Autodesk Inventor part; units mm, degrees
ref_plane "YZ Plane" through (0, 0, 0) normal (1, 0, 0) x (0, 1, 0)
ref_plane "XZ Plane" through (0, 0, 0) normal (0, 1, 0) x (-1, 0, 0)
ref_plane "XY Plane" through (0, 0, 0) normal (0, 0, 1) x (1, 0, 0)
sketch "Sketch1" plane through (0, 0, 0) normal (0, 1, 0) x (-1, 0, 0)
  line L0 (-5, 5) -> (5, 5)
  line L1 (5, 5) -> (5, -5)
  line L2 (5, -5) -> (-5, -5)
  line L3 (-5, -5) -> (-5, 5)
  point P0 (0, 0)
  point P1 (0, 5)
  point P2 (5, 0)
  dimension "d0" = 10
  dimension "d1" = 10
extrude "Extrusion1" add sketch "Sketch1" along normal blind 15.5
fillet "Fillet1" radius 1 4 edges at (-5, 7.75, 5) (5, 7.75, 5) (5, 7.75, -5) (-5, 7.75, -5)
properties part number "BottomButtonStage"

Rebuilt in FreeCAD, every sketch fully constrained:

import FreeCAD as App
import Part
import Sketcher
Q = App.Units.Quantity


def edges_at(feature, points):
    """Names of the edges that pass closest to the given points."""
    edges = feature.Shape.Edges
    near = lambda p: min(range(len(edges)), key=lambda i: edges[i].distToShape(Part.Vertex(*p))[0])
    return sorted({f"Edge{near(p) + 1}" for p in points})

doc = App.newDocument("Part")
params = doc.addObject("Spreadsheet::Sheet", "Params")
for row, (alias, value) in enumerate([
    ("sketch1_width", "10 mm"),
    ("pad1_length", "15.5 mm"),
    ("fillet_radius", "1 mm"),
], start=1):
    params.set(f"A{row}", alias)
    params.set(f"B{row}", "=" + value)
    params.setAlias(f"B{row}", alias)

body = doc.addObject("PartDesign::Body", "Body")

# Sketch on XZ plane
sketch1 = body.newObject("Sketcher::SketchObject", "Sketch")
sketch1.AttachmentSupport = (doc.getObject("XZ_Plane"), [""])
sketch1.MapMode = "FlatFace"
sketch1.addGeometry([
    Part.LineSegment(App.Vector(-5, 5, 0), App.Vector(5, 5, 0)),
    Part.LineSegment(App.Vector(5, 5, 0), App.Vector(5, -5, 0)),
    Part.LineSegment(App.Vector(5, -5, 0), App.Vector(-5, -5, 0)),
    Part.LineSegment(App.Vector(-5, -5, 0), App.Vector(-5, 5, 0)),
], False)
sketch1.addConstraint([
    Sketcher.Constraint("Coincident", 0, 2, 1, 1),
    Sketcher.Constraint("Coincident", 1, 2, 2, 1),
    Sketcher.Constraint("Coincident", 2, 2, 3, 1),
    Sketcher.Constraint("Coincident", 3, 2, 0, 1),
    Sketcher.Constraint("Horizontal", 0),
    Sketcher.Constraint("Vertical", 1),
    Sketcher.Constraint("Horizontal", 2),
    Sketcher.Constraint("Vertical", 3),
    Sketcher.Constraint("Symmetric", 0, 2, 2, 2, -1, 1),
    Sketcher.Constraint("Equal", 2, 1),
    Sketcher.Constraint("DistanceX", 0, 1, 0, 2, Q("10 mm")),
])
sketch1.setExpression("Constraints[10]", "Params.sketch1_width")
pad1 = body.newObject("PartDesign::Pad", "Pad")
pad1.Profile = sketch1
pad1.setExpression("Length", "Params.pad1_length")
pad1.Reversed = True
doc.recompute()

fillet = body.newObject("PartDesign::Fillet", "Fillet")
fillet.Base = (pad1, edges_at(pad1, [
    (-5, 7.75, 5),
    (5, 7.75, 5),
    (5, 7.75, -5),
    (-5, 7.75, -5),
]))
fillet.setExpression("Radius", "Params.fillet_radius")

doc.recompute()
